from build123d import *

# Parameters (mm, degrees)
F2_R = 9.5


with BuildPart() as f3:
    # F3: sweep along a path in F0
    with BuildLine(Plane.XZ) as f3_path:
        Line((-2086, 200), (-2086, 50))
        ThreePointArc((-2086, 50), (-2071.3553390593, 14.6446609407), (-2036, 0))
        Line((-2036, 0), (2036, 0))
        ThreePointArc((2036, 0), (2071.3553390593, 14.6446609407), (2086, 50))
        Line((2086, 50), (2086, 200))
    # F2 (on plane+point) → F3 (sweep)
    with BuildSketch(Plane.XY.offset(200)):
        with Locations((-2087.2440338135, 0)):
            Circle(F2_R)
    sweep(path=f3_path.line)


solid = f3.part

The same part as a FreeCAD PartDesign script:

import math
import FreeCAD as App
import Part
import Sketcher

V = App.Vector
Q = App.Units.Quantity

doc = App.newDocument("Part")
params = doc.addObject("Spreadsheet::Sheet", "Params")
for row, (alias, value) in enumerate([
    ("sketch1_diameter", "19 mm"),
    ("sketch2_radius", "50 mm"),
    ("sketch2_width", "4072 mm"),
    ("sketch2_height", "150 mm"),
], start=1):
    params.set(f"A{row}", alias)
    params.set(f"B{row}", "=" + value)
    params.setAlias(f"B{row}", alias)

body = doc.addObject("PartDesign::Body", "Body")

# Sketch on XY plane
sketch1 = body.newObject("Sketcher::SketchObject", "Sketch")
sketch1.AttachmentSupport = (doc.getObject("XY_Plane"), [""])
sketch1.MapMode = "FlatFace"
sketch1.AttachmentOffset = App.Placement(V(0, 0, 200), App.Rotation())
sketch1.addGeometry(Part.Circle(V(-2087, 0, 0), V(0, 0, 1), 10), False)
sketch1.addConstraint([
    Sketcher.Constraint("PointOnObject", 0, 3, -1),
    Sketcher.Constraint("Diameter", 0, Q("19 mm")),
    Sketcher.Constraint("DistanceX", 0, 3, -1, 1, Q("2087.244034 mm")),
])
sketch1.setExpression("Constraints[1]", "Params.sketch1_diameter")

# Sketch on XZ plane
sketch2 = body.newObject("Sketcher::SketchObject", "Sketch001")
sketch2.AttachmentSupport = (doc.getObject("XZ_Plane"), [""])
sketch2.MapMode = "FlatFace"
sketch2.addGeometry([
    Part.LineSegment(V(-2086, 200, 0), V(-2086, 50, 0)),  # 0
    Part.ArcOfCircle(Part.Circle(V(-2036, 50, 0), V(0, 0, 1), 50), math.radians(180), math.radians(270)),  # 1
    Part.LineSegment(V(-2036, 0, 0), V(2036, 0, 0)),  # 2
    Part.ArcOfCircle(Part.Circle(V(2036, 50, 0), V(0, 0, 1), 50), math.radians(-90), math.radians(0)),  # 3
    Part.LineSegment(V(2086, 50, 0), V(2086, 200, 0)),  # 4
], False)
sketch2.addConstraint([
    Sketcher.Constraint("Tangent", 0, 2, 1, 1),
    Sketcher.Constraint("Tangent", 1, 2, 2, 1),
    Sketcher.Constraint("Tangent", 2, 2, 3, 1),
    Sketcher.Constraint("Tangent", 3, 2, 4, 1),
    Sketcher.Constraint("Vertical", 0),
    Sketcher.Constraint("Horizontal", 2),
    Sketcher.Constraint("Vertical", 4),
    Sketcher.Constraint("Equal", 1, 3),
    Sketcher.Constraint("Symmetric", 1, 2, 2, 2, -1, 1),
    Sketcher.Constraint("Horizontal", 0, 1, 4, 2),
    Sketcher.Constraint("Radius", 1, Q("50 mm")),
    Sketcher.Constraint("DistanceX", 2, 1, 2, 2, Q("4072 mm")),
    Sketcher.Constraint("DistanceY", 0, 2, 0, 1, Q("150 mm")),
])
sketch2.setExpression("Constraints[10]", "Params.sketch2_radius")
sketch2.setExpression("Constraints[11]", "Params.sketch2_width")
sketch2.setExpression("Constraints[12]", "Params.sketch2_height")
doc.recompute()

additivepipe = body.newObject("PartDesign::AdditivePipe", "AdditivePipe")
additivepipe.Profile = sketch1
additivepipe.Spine = (sketch2, ["Edge1", "Edge2", "Edge3", "Edge4", "Edge5"])

doc.recompute()
